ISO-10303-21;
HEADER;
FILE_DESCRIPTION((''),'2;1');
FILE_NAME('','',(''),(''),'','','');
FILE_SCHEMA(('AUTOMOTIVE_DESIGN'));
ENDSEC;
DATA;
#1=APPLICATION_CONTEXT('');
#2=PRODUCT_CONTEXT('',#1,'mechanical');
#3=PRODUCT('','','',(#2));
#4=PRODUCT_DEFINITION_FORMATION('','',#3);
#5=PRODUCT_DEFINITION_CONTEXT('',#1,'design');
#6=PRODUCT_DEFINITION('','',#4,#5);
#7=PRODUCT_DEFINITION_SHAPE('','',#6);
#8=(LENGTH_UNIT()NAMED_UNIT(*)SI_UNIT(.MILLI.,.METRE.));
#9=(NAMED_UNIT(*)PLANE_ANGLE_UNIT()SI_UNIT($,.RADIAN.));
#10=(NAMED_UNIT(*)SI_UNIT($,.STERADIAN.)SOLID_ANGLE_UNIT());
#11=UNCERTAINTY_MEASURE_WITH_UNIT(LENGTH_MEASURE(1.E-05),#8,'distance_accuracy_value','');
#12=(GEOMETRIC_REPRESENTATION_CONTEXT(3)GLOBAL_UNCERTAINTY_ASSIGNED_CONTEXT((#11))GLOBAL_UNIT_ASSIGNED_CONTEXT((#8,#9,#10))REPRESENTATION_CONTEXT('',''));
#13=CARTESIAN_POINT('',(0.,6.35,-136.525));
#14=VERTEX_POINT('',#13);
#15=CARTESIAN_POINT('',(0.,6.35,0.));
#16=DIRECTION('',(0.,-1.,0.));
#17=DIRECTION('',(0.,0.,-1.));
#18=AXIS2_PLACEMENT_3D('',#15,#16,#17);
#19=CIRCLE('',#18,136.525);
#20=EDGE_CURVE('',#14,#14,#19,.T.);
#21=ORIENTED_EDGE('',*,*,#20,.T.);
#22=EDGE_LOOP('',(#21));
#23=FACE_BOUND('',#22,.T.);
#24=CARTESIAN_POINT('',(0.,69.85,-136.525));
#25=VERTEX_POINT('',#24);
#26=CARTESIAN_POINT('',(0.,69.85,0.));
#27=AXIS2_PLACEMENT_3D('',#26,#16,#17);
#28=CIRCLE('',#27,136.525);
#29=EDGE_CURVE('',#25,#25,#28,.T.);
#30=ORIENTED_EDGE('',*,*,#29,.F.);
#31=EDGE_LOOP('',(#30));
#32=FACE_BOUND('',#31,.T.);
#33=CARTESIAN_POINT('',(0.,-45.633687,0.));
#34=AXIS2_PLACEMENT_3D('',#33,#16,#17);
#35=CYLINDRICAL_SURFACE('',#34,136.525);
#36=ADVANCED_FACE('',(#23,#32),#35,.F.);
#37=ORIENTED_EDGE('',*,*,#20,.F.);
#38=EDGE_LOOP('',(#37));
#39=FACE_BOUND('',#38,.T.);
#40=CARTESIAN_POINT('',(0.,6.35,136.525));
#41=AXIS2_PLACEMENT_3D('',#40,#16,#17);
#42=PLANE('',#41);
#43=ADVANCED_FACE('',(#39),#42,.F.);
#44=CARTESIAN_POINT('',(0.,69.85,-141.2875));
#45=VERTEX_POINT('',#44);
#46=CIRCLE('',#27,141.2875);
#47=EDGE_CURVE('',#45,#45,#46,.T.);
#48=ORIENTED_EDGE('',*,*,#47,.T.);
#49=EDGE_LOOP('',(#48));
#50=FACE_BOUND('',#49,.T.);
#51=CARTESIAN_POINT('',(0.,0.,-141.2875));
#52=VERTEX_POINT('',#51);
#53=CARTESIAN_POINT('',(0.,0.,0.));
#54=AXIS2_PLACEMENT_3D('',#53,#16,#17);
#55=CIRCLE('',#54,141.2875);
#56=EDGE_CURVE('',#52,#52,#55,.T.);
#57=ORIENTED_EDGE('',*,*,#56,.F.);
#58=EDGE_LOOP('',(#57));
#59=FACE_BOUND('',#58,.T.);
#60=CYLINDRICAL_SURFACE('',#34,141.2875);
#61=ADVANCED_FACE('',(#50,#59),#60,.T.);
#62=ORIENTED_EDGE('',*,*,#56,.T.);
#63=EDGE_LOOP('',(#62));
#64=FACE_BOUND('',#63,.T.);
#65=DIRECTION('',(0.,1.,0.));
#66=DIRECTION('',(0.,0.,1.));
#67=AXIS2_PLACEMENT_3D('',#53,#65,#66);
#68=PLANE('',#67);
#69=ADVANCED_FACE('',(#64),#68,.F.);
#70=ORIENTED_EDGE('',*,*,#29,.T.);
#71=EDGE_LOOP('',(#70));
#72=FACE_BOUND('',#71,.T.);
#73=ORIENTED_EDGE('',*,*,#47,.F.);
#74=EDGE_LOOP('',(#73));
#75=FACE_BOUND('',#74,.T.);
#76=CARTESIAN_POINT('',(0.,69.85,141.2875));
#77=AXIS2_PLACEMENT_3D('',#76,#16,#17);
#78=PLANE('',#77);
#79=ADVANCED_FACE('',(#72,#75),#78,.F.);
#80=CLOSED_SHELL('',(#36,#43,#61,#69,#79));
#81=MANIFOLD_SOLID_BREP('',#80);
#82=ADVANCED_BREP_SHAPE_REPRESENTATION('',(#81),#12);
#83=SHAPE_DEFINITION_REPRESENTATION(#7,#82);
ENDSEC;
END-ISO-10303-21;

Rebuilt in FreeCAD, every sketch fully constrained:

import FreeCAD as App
import Part
import Sketcher
Q = App.Units.Quantity

doc = App.newDocument("Part")
params = doc.addObject("Spreadsheet::Sheet", "Params")
for row, (alias, value) in enumerate([
    ("sketch1_width", "2.5 in"),
    ("sketch1_width2", "0.25 in"),
    ("sketch1_height", "5.5625 in"),
    ("sketch1_height2", "5.375 in"),
    ("revolution_angle", "360 deg"),
], start=1):
    params.set(f"A{row}", alias)
    params.set(f"B{row}", "=" + value)
    params.setAlias(f"B{row}", alias)

body = doc.addObject("PartDesign::Body", "Body")

# Sketch on YZ plane
sketch1 = doc.addObject("Sketcher::SketchObject", "Sketch")
body.addObject(sketch1)
sketch1.AttachmentSupport = (doc.YZ_Plane, [""])
sketch1.MapMode = "FlatFace"
sketch1.addGeometry(Part.LineSegment(App.Vector(0, 141.3, 0), App.Vector(0, 0, 0)), False)
sketch1.addGeometry(Part.LineSegment(App.Vector(0, 0, 0), App.Vector(6.3, 0, 0)), False)
sketch1.addGeometry(Part.LineSegment(App.Vector(6.3, 0, 0), App.Vector(6.3, 136.5, 0)), False)
sketch1.addGeometry(Part.LineSegment(App.Vector(6.3, 136.5, 0), App.Vector(69.8, 136.5, 0)), False)
sketch1.addGeometry(Part.LineSegment(App.Vector(69.8, 136.5, 0), App.Vector(69.8, 141.3, 0)), False)
sketch1.addGeometry(Part.LineSegment(App.Vector(69.8, 141.3, 0), App.Vector(0, 141.3, 0)), False)
sketch1.addConstraint(Sketcher.Constraint("Coincident", 0, 2, 1, 1))
sketch1.addConstraint(Sketcher.Constraint("Coincident", 1, 2, 2, 1))
sketch1.addConstraint(Sketcher.Constraint("Coincident", 2, 2, 3, 1))
sketch1.addConstraint(Sketcher.Constraint("Coincident", 3, 2, 4, 1))
sketch1.addConstraint(Sketcher.Constraint("Coincident", 4, 2, 5, 1))
sketch1.addConstraint(Sketcher.Constraint("Coincident", 5, 2, 0, 1))
sketch1.addConstraint(Sketcher.Constraint("Vertical", 0))
sketch1.addConstraint(Sketcher.Constraint("Horizontal", 1))
sketch1.addConstraint(Sketcher.Constraint("Vertical", 2))
sketch1.addConstraint(Sketcher.Constraint("Horizontal", 3))
sketch1.addConstraint(Sketcher.Constraint("Vertical", 4))
sketch1.addConstraint(Sketcher.Constraint("Horizontal", 5))
sketch1.addConstraint(Sketcher.Constraint("Coincident", 0, 2, -1, 1))
sketch1.addConstraint(Sketcher.Constraint("DistanceX", 3, 1, 3, 2, Q("2.5 in")))
sketch1.addConstraint(Sketcher.Constraint("DistanceX", 1, 1, 1, 2, Q("0.25 in")))
sketch1.addConstraint(Sketcher.Constraint("DistanceY", 0, 2, 0, 1, Q("5.5625 in")))
sketch1.addConstraint(Sketcher.Constraint("DistanceY", 2, 1, 2, 2, Q("5.375 in")))
sketch1.setExpression("Constraints[13]", "Params.sketch1_width")
sketch1.setExpression("Constraints[14]", "Params.sketch1_width2")
sketch1.setExpression("Constraints[15]", "Params.sketch1_height")
sketch1.setExpression("Constraints[16]", "Params.sketch1_height2")
revolution = doc.addObject("PartDesign::Revolution", "Revolution")
body.addObject(revolution)
revolution.Profile = sketch1
revolution.ReferenceAxis = (sketch1, ["H_Axis"])
revolution.setExpression("Angle", "Params.revolution_angle")

doc.recompute()
